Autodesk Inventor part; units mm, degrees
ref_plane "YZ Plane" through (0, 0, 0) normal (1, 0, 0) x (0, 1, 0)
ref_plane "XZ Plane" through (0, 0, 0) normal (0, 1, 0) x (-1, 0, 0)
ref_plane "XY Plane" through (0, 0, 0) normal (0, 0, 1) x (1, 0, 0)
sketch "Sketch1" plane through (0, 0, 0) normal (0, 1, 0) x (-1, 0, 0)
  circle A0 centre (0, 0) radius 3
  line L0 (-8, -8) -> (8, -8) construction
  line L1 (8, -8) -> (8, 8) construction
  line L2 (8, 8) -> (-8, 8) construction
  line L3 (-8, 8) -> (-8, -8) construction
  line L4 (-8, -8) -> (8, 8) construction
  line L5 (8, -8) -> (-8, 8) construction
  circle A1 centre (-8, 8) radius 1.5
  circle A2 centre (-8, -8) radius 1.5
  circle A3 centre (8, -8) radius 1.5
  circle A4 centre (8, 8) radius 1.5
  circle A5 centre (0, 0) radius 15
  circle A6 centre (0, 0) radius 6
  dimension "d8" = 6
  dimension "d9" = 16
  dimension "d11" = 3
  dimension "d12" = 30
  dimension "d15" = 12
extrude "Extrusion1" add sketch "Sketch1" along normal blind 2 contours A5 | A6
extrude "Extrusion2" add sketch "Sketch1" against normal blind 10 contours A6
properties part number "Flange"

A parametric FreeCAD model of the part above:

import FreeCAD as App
import Part
import Sketcher

V = App.Vector
Q = App.Units.Quantity

doc = App.newDocument("Part")
body = doc.addObject("PartDesign::Body", "Body")

sketch1 = body.newObject("Sketcher::SketchObject", "Sketch")
sketch1.AttachmentSupport = (doc.getObject("XZ_Plane"), [""])
sketch1.MapMode = "FlatFace"
sketch1.addGeometry([
    Part.Circle(V(0, 0, 0), V(0, 0, 1), 15),
    Part.Circle(V(8, -8, 0), V(0, 0, 1), 1.5),
    Part.Circle(V(-8, -8, 0), V(0, 0, 1), 1.5),
    Part.Circle(V(8, 8, 0), V(0, 0, 1), 1.5),
    Part.Circle(V(-8, 8, 0), V(0, 0, 1), 1.5),
    Part.Circle(V(0, 0, 0), V(0, 0, 1), 3),
], False)
sketch1.addConstraint([
    Sketcher.Constraint("Coincident", 0, 3, -1, 1),
    Sketcher.Constraint("Coincident", 5, 3, -1, 1),
    Sketcher.Constraint("Equal", 1, 2),
    Sketcher.Constraint("Equal", 2, 3),
    Sketcher.Constraint("Equal", 3, 4),
    Sketcher.Constraint("Symmetric", 2, 3, 3, 3, -1, 1),
    Sketcher.Constraint("Symmetric", 1, 3, 4, 3, -1, 1),
    Sketcher.Constraint("Symmetric", 1, 3, 2, 3, -2),
    Sketcher.Constraint("Diameter", 0, Q("30 mm")),
    Sketcher.Constraint("Diameter", 1, Q("3 mm")),
    Sketcher.Constraint("Diameter", 5, Q("6 mm")),
    Sketcher.Constraint("DistanceX", 2, 3, 1, 3, Q("16 mm")),
    Sketcher.Constraint("DistanceY", 1, 3, 3, 3, Q("16 mm")),
])
pad1 = body.newObject("PartDesign::Pad", "Pad")
pad1.Profile = sketch1
pad1.Length = 2
pad1.Reversed = True

sketch2 = body.newObject("Sketcher::SketchObject", "Sketch001")
sketch2.AttachmentSupport = (doc.getObject("XZ_Plane"), [""])
sketch2.MapMode = "FlatFace"
sketch2.addGeometry([
    Part.Circle(V(0, 0, 0), V(0, 0, 1), 6),
    Part.Circle(V(0, 0, 0), V(0, 0, 1), 3),
], False)
sketch2.addConstraint([
    Sketcher.Constraint("Coincident", 0, 3, -1, 1),
    Sketcher.Constraint("Coincident", 1, 3, -1, 1),
    Sketcher.Constraint("Diameter", 0, Q("12 mm")),
    Sketcher.Constraint("Diameter", 1, Q("6 mm")),
])
pad2 = body.newObject("PartDesign::Pad", "Pad001")
pad2.Profile = sketch2
pad2.Length = 10

doc.recompute()
